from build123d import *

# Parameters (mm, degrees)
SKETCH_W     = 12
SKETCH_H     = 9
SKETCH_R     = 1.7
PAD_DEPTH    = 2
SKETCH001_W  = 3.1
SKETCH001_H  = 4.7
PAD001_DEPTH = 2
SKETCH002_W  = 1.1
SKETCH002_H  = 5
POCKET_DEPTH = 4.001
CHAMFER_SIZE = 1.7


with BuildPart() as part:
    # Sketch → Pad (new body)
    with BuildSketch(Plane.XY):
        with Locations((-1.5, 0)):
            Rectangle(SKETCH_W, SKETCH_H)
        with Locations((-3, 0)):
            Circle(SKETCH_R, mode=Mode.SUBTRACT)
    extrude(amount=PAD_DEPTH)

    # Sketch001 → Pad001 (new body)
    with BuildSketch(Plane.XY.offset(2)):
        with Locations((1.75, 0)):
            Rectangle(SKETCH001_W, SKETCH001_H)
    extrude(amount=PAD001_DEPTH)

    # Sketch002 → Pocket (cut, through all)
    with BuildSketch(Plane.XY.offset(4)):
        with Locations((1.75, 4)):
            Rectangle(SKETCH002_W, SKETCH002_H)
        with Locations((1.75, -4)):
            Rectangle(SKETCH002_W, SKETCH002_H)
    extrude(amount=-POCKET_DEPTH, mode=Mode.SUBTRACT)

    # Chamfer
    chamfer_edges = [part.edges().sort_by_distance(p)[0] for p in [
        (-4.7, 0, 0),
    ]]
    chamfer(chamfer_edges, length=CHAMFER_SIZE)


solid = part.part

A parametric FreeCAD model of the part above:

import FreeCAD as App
import Part
import Sketcher
from FreeCAD import Vector


def edges_at(feature, points):
    """Names of the edges that pass closest to the given points."""
    edges = feature.Shape.Edges
    near = lambda p: min(range(len(edges)), key=lambda i: edges[i].distToShape(Part.Vertex(*p))[0])
    return sorted({f"Edge{near(p) + 1}" for p in points})


def add_polygon(sketch, points):
    """Adds a closed chain of lines whose ends are joined by coincident constraints."""
    first, n = sketch.GeometryCount, len(points)
    for a, b in zip(points, points[1:] + points[:1]):
        sketch.addGeometry(Part.LineSegment(App.Vector(*a, 0), App.Vector(*b, 0)), False)
    for i in range(n):
        sketch.addConstraint(Sketcher.Constraint("Coincident", first + i, 2, first + (i + 1) % n, 1))

doc = App.newDocument("Part")
body = doc.addObject("PartDesign::Body", "Body")

sketch1 = body.newObject("Sketcher::SketchObject", "Sketch")
sketch1.AttachmentSupport = (doc.getObject("XY_Plane"), [""])
sketch1.MapMode = "FlatFace"
add_polygon(sketch1, [(-7.5, 4.5), (-7.5, -4.5), (4.5, -4.5), (4.5, 4.5)])
sketch1.addGeometry(Part.Circle(Vector(-3, 0, 0), Vector(0, 0, 1), 1.7), False)
sketch1.addConstraint([
    Sketcher.Constraint("Vertical", 0),
    Sketcher.Constraint("Horizontal", 1),
    Sketcher.Constraint("Vertical", 2),
    Sketcher.Constraint("Horizontal", 3),
    Sketcher.Constraint("PointOnObject", 4, 3, -1),
    Sketcher.Constraint("Diameter", 4, 3.4),
    Sketcher.Constraint("DistanceX", 1, 1, 1, 2, 12.0),
    Sketcher.Constraint("DistanceY", 0, 2, 0, 1, 9.0),
    Sketcher.Constraint("DistanceX", 4, 3, -1, 1, 3.0),
    Sketcher.Constraint("DistanceX", 0, 2, -1, 1, 7.5),
    Sketcher.Constraint("DistanceY", 0, 2, -1, 1, 4.5),
])
pad1 = body.newObject("PartDesign::Pad", "Pad")
pad1.Profile = sketch1
pad1.Length = 2

sketch2 = body.newObject("Sketcher::SketchObject", "Sketch001")
sketch2.AttachmentSupport = (doc.getObject("XY_Plane"), [""])
sketch2.MapMode = "FlatFace"
sketch2.AttachmentOffset = App.Placement(Vector(0, 0, 2), App.Rotation())
add_polygon(sketch2, [(0.2, 2.4), (0.2, -2.4), (3.3, -2.4), (3.3, 2.4)])
sketch2.addConstraint([
    Sketcher.Constraint("Vertical", 0),
    Sketcher.Constraint("Horizontal", 1),
    Sketcher.Constraint("Vertical", 2),
    Sketcher.Constraint("Horizontal", 3),
    Sketcher.Constraint("DistanceX", 1, 1, 1, 2, 3.1),
    Sketcher.Constraint("DistanceY", 0, 2, 0, 1, 4.7),
    Sketcher.Constraint("DistanceX", -1, 1, 0, 2, 0.2),
    Sketcher.Constraint("DistanceY", 0, 2, -1, 1, 2.35),
])
pad2 = body.newObject("PartDesign::Pad", "Pad001")
pad2.Profile = sketch2
pad2.Length = 2

sketch3 = body.newObject("Sketcher::SketchObject", "Sketch002")
sketch3.AttachmentSupport = (doc.getObject("XY_Plane"), [""])
sketch3.MapMode = "FlatFace"
sketch3.AttachmentOffset = App.Placement(Vector(0, 0, 4), App.Rotation())
add_polygon(sketch3, [(1.2, 6.5), (1.2, 1.5), (2.3, 1.5), (2.3, 6.5)])
add_polygon(sketch3, [(1.2, -1.5), (1.2, -6.5), (2.3, -6.5), (2.3, -1.5)])
sketch3.addConstraint([
    Sketcher.Constraint("Vertical", 0),
    Sketcher.Constraint("Horizontal", 1),
    Sketcher.Constraint("Vertical", 2),
    Sketcher.Constraint("Horizontal", 3),
    Sketcher.Constraint("Vertical", 4),
    Sketcher.Constraint("Horizontal", 5),
    Sketcher.Constraint("Vertical", 6),
    Sketcher.Constraint("Horizontal", 7),
    Sketcher.Constraint("Symmetric", 3, 2, 4, 2, -1),
    Sketcher.Constraint("Symmetric", 1, 2, 6, 2, -1),
    Sketcher.Constraint("DistanceY", 0, 2, 0, 1, 5.0),
    Sketcher.Constraint("DistanceX", 1, 1, 1, 2, 1.1),
    Sketcher.Constraint("DistanceY", 4, 2, 0, 2, 8.0),
    Sketcher.Constraint("DistanceX", -1, 1, 0, 2, 1.2),
])
pocket1 = body.newObject("PartDesign::Pocket", "Pocket")
pocket1.Profile = sketch3
pocket1.Type = "ThroughAll"
doc.recompute()

chamfer = body.newObject("PartDesign::Chamfer", "Chamfer")
chamfer.Base = (pocket1, edges_at(pocket1, [(-4.7, 0, 0)]))
chamfer.Size = 1.7

doc.recompute()
